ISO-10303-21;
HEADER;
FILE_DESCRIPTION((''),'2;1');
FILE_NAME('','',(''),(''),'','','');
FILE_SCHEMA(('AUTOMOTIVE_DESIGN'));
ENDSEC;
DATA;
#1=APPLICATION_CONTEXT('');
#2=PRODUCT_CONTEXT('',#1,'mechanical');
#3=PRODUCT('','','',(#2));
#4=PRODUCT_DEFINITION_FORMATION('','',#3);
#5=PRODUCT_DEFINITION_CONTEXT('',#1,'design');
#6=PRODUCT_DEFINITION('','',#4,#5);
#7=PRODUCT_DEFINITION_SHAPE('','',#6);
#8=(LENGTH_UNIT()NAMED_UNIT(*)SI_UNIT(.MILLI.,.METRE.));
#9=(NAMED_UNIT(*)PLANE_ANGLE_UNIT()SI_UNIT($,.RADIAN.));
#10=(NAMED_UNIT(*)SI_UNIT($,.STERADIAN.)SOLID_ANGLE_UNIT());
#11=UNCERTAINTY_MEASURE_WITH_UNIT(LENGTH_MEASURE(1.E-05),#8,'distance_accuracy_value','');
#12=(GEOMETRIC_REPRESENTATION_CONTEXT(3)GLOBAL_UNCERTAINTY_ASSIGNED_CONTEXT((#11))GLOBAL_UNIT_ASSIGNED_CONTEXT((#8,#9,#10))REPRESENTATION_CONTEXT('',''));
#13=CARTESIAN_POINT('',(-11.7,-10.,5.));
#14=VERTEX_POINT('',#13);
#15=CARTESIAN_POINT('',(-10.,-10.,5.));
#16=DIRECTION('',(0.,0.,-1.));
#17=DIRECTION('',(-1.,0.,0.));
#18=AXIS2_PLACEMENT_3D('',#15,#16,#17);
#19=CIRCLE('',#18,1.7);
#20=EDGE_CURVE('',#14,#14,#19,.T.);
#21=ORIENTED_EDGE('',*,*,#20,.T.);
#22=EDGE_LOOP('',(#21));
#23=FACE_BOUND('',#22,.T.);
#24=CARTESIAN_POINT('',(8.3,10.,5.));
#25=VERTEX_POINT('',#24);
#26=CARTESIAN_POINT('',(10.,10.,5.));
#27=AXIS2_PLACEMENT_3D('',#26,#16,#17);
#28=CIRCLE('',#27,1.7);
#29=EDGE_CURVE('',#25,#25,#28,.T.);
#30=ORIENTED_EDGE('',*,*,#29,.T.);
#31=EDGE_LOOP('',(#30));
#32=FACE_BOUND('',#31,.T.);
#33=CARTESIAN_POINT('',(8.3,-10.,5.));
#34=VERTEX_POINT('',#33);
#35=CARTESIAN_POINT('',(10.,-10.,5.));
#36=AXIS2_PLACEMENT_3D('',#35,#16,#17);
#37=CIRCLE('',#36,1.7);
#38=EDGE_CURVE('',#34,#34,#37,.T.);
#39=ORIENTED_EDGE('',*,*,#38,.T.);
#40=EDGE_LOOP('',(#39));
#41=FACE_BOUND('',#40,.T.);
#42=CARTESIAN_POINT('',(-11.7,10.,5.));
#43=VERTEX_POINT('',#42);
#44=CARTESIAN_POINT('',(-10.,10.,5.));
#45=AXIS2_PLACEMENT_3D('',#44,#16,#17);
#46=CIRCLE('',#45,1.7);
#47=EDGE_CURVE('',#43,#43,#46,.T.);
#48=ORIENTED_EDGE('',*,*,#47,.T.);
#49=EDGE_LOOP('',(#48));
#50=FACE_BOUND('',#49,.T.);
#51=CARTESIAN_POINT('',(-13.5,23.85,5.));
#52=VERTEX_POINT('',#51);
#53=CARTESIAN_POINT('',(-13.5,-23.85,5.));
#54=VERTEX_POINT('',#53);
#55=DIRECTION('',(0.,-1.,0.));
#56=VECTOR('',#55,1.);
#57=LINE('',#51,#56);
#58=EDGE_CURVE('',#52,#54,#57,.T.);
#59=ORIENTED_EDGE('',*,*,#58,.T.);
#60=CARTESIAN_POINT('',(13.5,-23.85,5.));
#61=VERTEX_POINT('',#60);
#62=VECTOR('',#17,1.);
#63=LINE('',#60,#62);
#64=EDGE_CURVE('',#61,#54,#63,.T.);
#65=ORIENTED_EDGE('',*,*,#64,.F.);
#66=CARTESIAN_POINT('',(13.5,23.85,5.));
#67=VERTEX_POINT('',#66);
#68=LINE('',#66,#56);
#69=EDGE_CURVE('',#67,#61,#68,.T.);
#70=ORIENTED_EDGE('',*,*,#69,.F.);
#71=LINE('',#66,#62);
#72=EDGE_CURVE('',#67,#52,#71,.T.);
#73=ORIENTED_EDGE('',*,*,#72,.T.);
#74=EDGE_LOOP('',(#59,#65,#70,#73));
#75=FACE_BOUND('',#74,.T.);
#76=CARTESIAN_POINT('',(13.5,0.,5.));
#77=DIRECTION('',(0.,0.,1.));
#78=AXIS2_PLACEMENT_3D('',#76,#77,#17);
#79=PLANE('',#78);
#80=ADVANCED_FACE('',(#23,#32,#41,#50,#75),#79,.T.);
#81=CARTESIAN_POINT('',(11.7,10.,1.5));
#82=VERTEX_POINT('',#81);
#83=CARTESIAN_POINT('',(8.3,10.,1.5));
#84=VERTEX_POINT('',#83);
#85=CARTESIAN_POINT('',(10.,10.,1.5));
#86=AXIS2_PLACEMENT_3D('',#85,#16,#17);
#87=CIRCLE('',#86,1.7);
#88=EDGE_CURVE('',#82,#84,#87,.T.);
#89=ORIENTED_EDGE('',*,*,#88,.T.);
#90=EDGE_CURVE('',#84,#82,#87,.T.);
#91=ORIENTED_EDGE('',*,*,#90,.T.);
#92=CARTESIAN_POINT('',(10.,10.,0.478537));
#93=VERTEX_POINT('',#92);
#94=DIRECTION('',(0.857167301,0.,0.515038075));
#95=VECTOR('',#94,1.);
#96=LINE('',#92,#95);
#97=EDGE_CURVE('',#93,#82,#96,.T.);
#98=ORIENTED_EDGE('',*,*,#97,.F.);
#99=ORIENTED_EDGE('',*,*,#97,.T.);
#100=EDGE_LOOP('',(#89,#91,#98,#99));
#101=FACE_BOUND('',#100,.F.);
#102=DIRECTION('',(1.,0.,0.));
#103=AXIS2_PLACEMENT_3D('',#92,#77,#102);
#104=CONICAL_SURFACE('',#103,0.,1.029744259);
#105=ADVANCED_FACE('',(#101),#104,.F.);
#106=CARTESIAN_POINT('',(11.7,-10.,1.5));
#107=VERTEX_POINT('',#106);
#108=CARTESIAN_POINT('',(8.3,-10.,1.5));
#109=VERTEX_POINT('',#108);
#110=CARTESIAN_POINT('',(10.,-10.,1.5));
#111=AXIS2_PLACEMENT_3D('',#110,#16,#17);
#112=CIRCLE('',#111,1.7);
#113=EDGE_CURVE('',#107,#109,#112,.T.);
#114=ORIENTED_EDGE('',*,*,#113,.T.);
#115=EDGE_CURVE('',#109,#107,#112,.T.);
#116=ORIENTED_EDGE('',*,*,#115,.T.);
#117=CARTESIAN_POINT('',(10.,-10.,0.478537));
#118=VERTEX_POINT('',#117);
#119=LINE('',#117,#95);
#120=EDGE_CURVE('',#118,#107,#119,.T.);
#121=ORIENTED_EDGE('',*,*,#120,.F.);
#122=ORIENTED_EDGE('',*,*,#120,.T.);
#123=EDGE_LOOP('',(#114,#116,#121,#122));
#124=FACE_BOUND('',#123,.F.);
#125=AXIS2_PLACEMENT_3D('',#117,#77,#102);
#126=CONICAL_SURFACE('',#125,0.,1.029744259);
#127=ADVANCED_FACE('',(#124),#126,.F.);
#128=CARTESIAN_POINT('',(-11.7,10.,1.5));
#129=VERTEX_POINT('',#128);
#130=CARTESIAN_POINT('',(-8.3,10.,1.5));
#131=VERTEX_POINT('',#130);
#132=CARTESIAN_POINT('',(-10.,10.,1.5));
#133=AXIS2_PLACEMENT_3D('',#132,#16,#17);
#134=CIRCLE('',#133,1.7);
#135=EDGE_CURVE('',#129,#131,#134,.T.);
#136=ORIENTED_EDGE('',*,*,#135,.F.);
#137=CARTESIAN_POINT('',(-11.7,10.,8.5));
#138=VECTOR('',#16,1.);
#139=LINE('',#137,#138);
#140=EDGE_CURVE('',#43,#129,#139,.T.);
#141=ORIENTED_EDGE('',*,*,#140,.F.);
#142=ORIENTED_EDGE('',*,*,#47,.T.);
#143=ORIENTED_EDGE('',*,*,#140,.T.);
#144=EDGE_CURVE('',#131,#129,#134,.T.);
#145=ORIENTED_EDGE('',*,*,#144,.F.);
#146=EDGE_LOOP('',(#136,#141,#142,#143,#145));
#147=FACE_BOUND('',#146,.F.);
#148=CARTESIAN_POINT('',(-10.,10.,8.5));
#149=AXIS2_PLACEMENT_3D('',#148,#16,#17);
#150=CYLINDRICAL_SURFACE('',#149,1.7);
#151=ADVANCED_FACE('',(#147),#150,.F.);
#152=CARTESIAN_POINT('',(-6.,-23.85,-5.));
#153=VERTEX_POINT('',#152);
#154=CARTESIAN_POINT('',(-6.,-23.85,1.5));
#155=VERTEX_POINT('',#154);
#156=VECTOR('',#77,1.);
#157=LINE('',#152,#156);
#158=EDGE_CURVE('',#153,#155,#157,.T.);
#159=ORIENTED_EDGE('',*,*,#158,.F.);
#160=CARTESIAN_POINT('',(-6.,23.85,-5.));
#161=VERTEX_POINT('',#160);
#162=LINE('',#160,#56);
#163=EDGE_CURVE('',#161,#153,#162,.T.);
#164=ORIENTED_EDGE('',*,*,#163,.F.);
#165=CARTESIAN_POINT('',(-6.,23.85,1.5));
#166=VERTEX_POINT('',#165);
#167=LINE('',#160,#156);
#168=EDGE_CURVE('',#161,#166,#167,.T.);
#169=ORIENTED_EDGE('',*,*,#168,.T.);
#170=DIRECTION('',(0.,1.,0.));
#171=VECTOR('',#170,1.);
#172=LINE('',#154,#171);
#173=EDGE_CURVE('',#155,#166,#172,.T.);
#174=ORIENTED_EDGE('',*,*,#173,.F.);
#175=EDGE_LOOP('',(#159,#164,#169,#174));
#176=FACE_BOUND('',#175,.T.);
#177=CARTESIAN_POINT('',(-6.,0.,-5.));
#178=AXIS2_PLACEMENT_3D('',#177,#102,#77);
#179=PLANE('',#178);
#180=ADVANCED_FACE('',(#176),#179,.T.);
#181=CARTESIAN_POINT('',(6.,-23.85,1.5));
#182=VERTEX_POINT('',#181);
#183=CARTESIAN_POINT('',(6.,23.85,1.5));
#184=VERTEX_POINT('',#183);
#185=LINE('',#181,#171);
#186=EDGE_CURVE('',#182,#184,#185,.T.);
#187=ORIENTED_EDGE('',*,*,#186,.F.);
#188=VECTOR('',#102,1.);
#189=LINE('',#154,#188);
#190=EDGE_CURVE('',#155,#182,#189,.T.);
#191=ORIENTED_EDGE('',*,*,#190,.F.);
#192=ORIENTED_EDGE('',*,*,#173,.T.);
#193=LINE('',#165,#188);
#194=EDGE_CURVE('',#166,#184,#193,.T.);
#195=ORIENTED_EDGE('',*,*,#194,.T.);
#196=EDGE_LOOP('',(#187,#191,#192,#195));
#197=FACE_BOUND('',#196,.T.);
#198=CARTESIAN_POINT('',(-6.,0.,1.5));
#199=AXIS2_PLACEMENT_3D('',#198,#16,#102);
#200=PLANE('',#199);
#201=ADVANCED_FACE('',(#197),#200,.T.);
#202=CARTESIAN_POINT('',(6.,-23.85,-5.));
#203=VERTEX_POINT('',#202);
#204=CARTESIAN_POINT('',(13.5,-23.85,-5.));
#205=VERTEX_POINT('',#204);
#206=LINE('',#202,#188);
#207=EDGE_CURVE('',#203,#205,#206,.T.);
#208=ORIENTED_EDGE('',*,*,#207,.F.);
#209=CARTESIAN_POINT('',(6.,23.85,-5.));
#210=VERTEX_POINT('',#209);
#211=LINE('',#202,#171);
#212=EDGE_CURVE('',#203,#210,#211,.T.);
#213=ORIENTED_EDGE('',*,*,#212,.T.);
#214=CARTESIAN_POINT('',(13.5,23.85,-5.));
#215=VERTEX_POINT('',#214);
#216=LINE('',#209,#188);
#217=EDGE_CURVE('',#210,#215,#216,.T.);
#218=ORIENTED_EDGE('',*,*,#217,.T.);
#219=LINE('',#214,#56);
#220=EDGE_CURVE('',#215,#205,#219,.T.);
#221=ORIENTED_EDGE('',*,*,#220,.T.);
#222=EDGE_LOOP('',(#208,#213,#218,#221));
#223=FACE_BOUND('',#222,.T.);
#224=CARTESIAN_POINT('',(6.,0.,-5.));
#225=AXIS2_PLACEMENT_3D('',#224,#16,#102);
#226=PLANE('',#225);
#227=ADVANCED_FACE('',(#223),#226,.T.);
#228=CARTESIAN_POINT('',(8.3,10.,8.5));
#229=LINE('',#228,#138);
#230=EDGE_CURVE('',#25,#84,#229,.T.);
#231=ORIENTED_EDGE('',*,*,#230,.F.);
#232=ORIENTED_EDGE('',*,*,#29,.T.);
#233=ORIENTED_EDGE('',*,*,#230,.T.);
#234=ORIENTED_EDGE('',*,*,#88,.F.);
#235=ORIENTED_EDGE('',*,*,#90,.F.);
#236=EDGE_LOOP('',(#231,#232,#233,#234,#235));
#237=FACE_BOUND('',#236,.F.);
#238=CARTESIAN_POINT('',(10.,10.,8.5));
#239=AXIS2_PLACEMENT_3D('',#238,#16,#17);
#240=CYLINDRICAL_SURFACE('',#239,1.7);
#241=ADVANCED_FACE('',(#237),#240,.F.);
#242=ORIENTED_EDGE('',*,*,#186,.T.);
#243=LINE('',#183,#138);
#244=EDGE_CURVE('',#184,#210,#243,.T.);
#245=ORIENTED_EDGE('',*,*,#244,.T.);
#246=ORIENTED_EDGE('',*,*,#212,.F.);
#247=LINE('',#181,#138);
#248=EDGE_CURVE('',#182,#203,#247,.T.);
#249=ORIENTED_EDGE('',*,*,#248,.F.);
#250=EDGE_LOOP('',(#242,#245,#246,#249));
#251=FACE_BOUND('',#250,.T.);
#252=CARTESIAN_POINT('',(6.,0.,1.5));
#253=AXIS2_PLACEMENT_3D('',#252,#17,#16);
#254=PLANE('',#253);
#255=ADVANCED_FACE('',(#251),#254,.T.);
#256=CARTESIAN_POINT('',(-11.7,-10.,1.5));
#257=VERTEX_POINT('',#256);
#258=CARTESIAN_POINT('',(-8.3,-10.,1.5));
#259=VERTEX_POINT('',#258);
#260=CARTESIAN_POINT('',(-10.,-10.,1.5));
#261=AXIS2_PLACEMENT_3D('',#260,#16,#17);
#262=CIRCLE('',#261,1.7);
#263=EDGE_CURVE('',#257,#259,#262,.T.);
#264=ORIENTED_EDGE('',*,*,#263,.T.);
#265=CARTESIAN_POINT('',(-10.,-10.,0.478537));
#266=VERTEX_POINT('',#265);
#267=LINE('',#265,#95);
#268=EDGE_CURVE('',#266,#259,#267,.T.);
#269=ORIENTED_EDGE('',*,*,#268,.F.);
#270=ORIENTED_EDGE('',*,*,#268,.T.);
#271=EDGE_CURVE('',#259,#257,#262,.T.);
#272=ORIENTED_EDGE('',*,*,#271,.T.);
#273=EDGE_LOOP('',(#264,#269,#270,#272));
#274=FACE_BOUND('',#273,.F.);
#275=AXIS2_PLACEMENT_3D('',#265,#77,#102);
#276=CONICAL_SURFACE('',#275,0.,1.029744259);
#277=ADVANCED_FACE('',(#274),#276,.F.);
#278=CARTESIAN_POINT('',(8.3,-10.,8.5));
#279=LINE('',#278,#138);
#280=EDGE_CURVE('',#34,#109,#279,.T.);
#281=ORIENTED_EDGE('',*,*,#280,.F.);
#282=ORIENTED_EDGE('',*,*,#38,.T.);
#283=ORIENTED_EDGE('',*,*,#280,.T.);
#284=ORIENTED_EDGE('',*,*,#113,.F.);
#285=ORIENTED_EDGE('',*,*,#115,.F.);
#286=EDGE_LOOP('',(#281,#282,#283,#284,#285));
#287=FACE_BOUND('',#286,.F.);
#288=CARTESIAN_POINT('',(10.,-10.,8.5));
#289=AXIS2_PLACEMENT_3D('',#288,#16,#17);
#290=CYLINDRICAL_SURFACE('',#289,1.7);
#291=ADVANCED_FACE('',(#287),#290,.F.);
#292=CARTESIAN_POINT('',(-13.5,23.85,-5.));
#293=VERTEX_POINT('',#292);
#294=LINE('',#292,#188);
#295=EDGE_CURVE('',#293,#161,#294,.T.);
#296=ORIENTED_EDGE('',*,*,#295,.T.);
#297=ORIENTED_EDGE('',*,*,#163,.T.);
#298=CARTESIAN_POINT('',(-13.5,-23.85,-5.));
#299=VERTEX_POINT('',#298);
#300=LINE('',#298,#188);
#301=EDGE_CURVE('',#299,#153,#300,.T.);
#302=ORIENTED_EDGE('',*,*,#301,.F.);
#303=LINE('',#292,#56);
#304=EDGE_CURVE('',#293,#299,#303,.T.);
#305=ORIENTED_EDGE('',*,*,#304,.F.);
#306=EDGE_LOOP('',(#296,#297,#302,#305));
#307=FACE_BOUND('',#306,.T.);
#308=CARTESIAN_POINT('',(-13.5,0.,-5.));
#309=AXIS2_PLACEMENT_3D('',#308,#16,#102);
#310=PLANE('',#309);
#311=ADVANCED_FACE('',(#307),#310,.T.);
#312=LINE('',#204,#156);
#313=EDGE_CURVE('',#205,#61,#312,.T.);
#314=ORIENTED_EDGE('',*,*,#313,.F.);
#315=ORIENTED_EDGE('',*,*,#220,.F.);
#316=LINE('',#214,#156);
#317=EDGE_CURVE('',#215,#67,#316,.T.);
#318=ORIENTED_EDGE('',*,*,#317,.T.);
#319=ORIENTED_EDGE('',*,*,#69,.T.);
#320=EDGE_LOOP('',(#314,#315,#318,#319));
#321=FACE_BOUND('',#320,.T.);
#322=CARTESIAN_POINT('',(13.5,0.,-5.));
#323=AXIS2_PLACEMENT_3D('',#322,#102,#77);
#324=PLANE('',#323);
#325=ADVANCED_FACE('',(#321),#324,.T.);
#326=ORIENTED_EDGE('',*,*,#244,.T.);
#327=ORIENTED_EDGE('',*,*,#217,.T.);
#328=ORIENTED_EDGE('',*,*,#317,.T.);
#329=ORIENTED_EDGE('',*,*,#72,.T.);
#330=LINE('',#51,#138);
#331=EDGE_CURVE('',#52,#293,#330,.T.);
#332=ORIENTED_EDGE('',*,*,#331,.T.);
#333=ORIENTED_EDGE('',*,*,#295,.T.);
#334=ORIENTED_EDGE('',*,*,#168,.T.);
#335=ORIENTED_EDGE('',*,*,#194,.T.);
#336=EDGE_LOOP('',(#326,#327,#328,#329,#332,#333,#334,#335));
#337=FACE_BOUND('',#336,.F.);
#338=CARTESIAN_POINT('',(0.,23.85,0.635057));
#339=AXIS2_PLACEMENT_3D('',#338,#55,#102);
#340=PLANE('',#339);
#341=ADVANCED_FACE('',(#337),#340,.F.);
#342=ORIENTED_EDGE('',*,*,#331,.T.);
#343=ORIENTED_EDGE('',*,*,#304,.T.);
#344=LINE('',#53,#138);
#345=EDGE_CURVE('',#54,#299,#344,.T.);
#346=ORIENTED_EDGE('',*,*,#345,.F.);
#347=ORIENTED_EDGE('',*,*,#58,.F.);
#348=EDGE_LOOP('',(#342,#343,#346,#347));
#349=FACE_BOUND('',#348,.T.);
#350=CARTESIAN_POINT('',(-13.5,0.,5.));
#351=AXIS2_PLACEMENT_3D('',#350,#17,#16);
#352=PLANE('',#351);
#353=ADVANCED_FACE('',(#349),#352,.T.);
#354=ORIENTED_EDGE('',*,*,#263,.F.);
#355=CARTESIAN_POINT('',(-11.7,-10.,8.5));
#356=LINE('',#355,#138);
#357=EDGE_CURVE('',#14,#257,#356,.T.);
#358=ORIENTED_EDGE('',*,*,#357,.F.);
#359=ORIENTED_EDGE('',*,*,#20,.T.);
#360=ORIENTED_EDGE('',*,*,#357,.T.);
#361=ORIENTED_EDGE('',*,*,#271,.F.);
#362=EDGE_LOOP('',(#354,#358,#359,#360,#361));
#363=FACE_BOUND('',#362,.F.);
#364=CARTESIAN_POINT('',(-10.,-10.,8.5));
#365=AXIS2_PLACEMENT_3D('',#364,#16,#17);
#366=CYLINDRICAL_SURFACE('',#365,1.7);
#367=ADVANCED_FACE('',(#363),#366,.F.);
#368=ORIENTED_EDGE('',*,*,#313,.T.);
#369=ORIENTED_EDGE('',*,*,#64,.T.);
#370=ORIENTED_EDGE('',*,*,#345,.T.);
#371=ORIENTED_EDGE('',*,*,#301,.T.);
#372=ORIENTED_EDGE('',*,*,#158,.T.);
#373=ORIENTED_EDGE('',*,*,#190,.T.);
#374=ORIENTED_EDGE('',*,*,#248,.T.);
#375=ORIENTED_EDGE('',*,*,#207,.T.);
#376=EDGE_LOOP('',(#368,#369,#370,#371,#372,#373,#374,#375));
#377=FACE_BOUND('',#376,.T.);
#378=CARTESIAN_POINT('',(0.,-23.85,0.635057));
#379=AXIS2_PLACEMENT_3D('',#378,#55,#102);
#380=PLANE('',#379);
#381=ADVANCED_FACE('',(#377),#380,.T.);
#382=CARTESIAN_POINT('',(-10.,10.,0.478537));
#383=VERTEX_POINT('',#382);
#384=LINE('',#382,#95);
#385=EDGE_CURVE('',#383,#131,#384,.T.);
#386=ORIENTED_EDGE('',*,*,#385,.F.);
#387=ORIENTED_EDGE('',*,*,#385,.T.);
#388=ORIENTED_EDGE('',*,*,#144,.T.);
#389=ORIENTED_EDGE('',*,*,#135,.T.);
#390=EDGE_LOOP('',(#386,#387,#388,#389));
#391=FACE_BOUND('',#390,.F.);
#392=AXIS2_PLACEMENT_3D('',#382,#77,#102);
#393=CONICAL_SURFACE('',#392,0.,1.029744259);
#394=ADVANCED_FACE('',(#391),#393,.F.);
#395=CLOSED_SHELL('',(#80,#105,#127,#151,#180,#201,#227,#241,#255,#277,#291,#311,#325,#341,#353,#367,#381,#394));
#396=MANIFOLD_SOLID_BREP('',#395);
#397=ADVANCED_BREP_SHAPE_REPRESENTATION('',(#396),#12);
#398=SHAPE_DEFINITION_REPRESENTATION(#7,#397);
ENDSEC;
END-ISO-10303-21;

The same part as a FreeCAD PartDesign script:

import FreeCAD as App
import Part
import Sketcher


def add_polygon(sketch, points):
    """Adds a closed chain of lines whose ends are joined by coincident constraints."""
    first, n = sketch.GeometryCount, len(points)
    for a, b in zip(points, points[1:] + points[:1]):
        sketch.addGeometry(Part.LineSegment(App.Vector(*a, 0), App.Vector(*b, 0)), False)
    for i in range(n):
        sketch.addConstraint(Sketcher.Constraint("Coincident", first + i, 2, first + (i + 1) % n, 1))

doc = App.newDocument("Part")
body = doc.addObject("PartDesign::Body", "Body")

# Sketch on XZ plane
sketch1 = body.newObject("Sketcher::SketchObject", "Sketch")
sketch1.AttachmentSupport = (doc.getObject("XZ_Plane"), [""])
sketch1.MapMode = "FlatFace"
add_polygon(sketch1, [(6, -5), (14, -5), (14, 5), (-14, 5), (-14, -5), (-6, -5), (-6, 2), (6, 2)])  # lines 0-7
sketch1.addConstraint([
    Sketcher.Constraint("Horizontal", 0),
    Sketcher.Constraint("Vertical", 1),
    Sketcher.Constraint("Horizontal", 2),
    Sketcher.Constraint("Vertical", 3),
    Sketcher.Constraint("Horizontal", 4),
    Sketcher.Constraint("Vertical", 5),
    Sketcher.Constraint("Horizontal", 6),
    Sketcher.Constraint("Vertical", 7),
    Sketcher.Constraint("Symmetric", 0, 2, 2, 2, -1, 1),
    Sketcher.Constraint("Symmetric", 4, 2, 7, 2, -2),
    Sketcher.Constraint("DistanceX", 2, 2, 2, 1, 27.0),
    Sketcher.Constraint("DistanceX", 6, 1, 6, 2, 12.0),
    Sketcher.Constraint("DistanceY", 1, 1, 1, 2, 10.0),
    Sketcher.Constraint("DistanceY", 5, 1, 5, 2, 6.5),
])
pad1 = body.newObject("PartDesign::Pad", "Pad")
pad1.Profile = sketch1
pad1.Length = 47.7
pad1.Midplane = True

# Sketch on XY plane
sketch2 = body.newObject("Sketcher::SketchObject", "Sketch001")
sketch2.AttachmentSupport = (doc.getObject("XY_Plane"), [""])
sketch2.MapMode = "FlatFace"
sketch2.AttachmentOffset = App.Placement(App.Vector(0, 0, 5), App.Rotation())
sketch2.addGeometry([
    Part.Circle(App.Vector(10, 10, 0), App.Vector(0, 0, 1), 1.7),
    Part.Circle(App.Vector(10, -10, 0), App.Vector(0, 0, 1), 1.7),
    Part.Circle(App.Vector(-10, -10, 0), App.Vector(0, 0, 1), 1.7),
    Part.Circle(App.Vector(-10, 10, 0), App.Vector(0, 0, 1), 1.7),
], False)
sketch2.addConstraint([
    Sketcher.Constraint("Equal", 0, 1),
    Sketcher.Constraint("Equal", 1, 2),
    Sketcher.Constraint("Equal", 2, 3),
    Sketcher.Constraint("Symmetric", 0, 3, 2, 3, -1, 1),
    Sketcher.Constraint("Symmetric", 1, 3, 3, 3, -1, 1),
    Sketcher.Constraint("Symmetric", 1, 3, 2, 3, -2),
    Sketcher.Constraint("Diameter", 0, 3.4),
    Sketcher.Constraint("DistanceX", -1, 1, 0, 3, 10.0),
    Sketcher.Constraint("DistanceY", -1, 1, 0, 3, 10.0),
])
doc.recompute()
hole = body.newObject("PartDesign::Hole", "Hole")
hole.Profile = sketch2
hole.ThreadType = "None"
hole.Diameter = 3.4
hole.DepthType = "Dimension"
hole.Depth = 3.5
hole.DrillPoint = "Angled"
hole.DrillPointAngle = 118

doc.recompute()
